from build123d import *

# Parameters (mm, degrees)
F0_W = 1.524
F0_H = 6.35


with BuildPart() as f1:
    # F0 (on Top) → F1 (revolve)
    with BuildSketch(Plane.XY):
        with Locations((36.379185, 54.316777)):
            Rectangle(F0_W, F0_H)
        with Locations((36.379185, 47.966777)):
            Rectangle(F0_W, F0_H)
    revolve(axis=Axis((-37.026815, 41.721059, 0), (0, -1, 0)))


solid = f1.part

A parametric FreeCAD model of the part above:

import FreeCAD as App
import Part
import Sketcher

V = App.Vector
Q = App.Units.Quantity


def add_polygon(sketch, points):
    """Adds a closed chain of lines whose ends are joined by coincident constraints."""
    first, n = sketch.GeometryCount, len(points)
    for a, b in zip(points, points[1:] + points[:1]):
        sketch.addGeometry(Part.LineSegment(App.Vector(*a, 0), App.Vector(*b, 0)), False)
    for i in range(n):
        sketch.addConstraint(Sketcher.Constraint("Coincident", first + i, 2, first + (i + 1) % n, 1))

doc = App.newDocument("Part")
body = doc.addObject("PartDesign::Body", "Body")

sketch1 = body.newObject("Sketcher::SketchObject", "Sketch")
sketch1.AttachmentSupport = (doc.getObject("XY_Plane"), [""])
sketch1.MapMode = "FlatFace"
add_polygon(sketch1, [(35.617185, 57.491777), (35.617185, 44.791777), (37.141185, 44.791777), (37.141185, 57.491777)])
sketch1.addGeometry(Part.LineSegment(V(-37.026815, 57.491777, 0), V(-37.026815, 44.791777, 0)), True)
sketch1.addConstraint([
    Sketcher.Constraint("Vertical", 0),
    Sketcher.Constraint("Horizontal", 1),
    Sketcher.Constraint("Vertical", 2),
    Sketcher.Constraint("Horizontal", 3),
    Sketcher.Constraint("Vertical", 4),
    Sketcher.Constraint("Horizontal", 3, 2, 4, 1),
    Sketcher.Constraint("Horizontal", 1, 2, 4, 2),
    Sketcher.Constraint("DistanceY", 0, 2, 0, 1, Q("0.5 in")),
    Sketcher.Constraint("DistanceX", 1, 1, 1, 2, Q("0.06 in")),
    Sketcher.Constraint("DistanceX", 4, 1, 3, 2, Q("2.86 in")),
    Sketcher.Constraint("DistanceX", -1, 1, 0, 2, Q("35.617185 mm")),
    Sketcher.Constraint("DistanceY", -1, 1, 0, 2, Q("44.791777 mm")),
])
revolution = body.newObject("PartDesign::Revolution", "Revolution")
revolution.Profile = sketch1
revolution.ReferenceAxis = (sketch1, ["Axis0"])
revolution.Angle = 360

doc.recompute()
